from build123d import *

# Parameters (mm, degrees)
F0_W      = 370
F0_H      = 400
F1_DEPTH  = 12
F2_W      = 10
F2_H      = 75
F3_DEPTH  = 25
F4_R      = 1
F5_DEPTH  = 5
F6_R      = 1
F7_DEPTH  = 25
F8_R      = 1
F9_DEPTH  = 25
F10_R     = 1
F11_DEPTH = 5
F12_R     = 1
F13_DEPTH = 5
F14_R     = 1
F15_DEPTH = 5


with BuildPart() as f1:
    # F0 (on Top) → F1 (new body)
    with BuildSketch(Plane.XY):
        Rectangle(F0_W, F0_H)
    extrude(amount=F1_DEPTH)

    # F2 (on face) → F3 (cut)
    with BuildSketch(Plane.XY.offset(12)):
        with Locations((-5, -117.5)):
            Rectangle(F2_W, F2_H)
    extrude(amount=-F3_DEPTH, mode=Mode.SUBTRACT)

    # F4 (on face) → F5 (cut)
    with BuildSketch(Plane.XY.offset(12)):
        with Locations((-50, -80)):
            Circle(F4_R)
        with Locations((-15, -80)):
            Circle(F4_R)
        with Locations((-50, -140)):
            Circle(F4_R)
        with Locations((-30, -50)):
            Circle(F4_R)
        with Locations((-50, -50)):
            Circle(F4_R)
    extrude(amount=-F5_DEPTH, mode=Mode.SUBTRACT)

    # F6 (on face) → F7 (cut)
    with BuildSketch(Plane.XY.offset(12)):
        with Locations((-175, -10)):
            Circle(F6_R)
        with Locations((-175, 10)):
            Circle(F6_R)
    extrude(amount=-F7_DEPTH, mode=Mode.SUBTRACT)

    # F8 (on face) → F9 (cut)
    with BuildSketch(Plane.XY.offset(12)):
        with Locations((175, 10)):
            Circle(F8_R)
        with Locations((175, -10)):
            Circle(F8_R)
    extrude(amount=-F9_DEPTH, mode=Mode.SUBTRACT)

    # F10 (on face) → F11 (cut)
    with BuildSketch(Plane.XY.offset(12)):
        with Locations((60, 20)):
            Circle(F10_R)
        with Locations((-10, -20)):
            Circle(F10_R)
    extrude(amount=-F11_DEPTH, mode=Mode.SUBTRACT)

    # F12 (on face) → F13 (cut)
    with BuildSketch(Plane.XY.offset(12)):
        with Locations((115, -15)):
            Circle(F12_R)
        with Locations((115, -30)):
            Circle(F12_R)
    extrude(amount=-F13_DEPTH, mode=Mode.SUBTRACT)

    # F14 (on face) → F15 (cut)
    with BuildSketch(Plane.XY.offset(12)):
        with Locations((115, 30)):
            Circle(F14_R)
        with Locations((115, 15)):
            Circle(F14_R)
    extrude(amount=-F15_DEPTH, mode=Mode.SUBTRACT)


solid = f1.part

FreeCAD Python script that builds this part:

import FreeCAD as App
import Part
import Sketcher

V = App.Vector
Q = App.Units.Quantity


def add_polygon(sketch, points):
    """Adds a closed chain of lines whose ends are joined by coincident constraints."""
    first, n = sketch.GeometryCount, len(points)
    for a, b in zip(points, points[1:] + points[:1]):
        sketch.addGeometry(Part.LineSegment(App.Vector(*a, 0), App.Vector(*b, 0)), False)
    for i in range(n):
        sketch.addConstraint(Sketcher.Constraint("Coincident", first + i, 2, first + (i + 1) % n, 1))

doc = App.newDocument("Part")
params = doc.addObject("Spreadsheet::Sheet", "Params")
for row, (alias, value) in enumerate([
    ("sketch1_width", "370 mm"),
    ("sketch1_height", "400 mm"),
    ("pad1_length", "12 mm"),
    ("sketch2_width", "10 mm"),
    ("sketch2_height", "75 mm"),
    ("pocket1_length", "25 mm"),
    ("sketch3_diameter", "2 mm"),
    ("pocket2_length", "5 mm"),
    ("sketch4_diameter", "2 mm"),
    ("pocket3_length", "25 mm"),
    ("sketch5_diameter", "2 mm"),
    ("pocket4_length", "25 mm"),
    ("sketch6_diameter", "2 mm"),
    ("pocket5_length", "5 mm"),
    ("sketch7_diameter", "2 mm"),
    ("pocket6_length", "5 mm"),
    ("sketch8_diameter", "2 mm"),
    ("pocket7_length", "5 mm"),
], start=1):
    params.set(f"A{row}", alias)
    params.set(f"B{row}", "=" + value)
    params.setAlias(f"B{row}", alias)

body = doc.addObject("PartDesign::Body", "Body")

# Sketch on XY plane
sketch1 = doc.addObject("Sketcher::SketchObject", "Sketch")
body.addObject(sketch1)
sketch1.AttachmentSupport = (doc.XY_Plane, [""])
sketch1.MapMode = "FlatFace"
add_polygon(sketch1, [(-185, 200), (-185, -200), (185, -200), (185, 200)])  # lines 0-3
sketch1.addConstraint(Sketcher.Constraint("Vertical", 0))
sketch1.addConstraint(Sketcher.Constraint("Horizontal", 1))
sketch1.addConstraint(Sketcher.Constraint("Vertical", 2))
sketch1.addConstraint(Sketcher.Constraint("Horizontal", 3))
sketch1.addConstraint(Sketcher.Constraint("Symmetric", 0, 2, 2, 2, -1, 1))
sketch1.addConstraint(Sketcher.Constraint("DistanceX", 1, 1, 1, 2, Q("370 mm")))
sketch1.addConstraint(Sketcher.Constraint("DistanceY", 0, 2, 0, 1, Q("400 mm")))
sketch1.setExpression("Constraints[9]", "Params.sketch1_width")
sketch1.setExpression("Constraints[10]", "Params.sketch1_height")
pad1 = doc.addObject("PartDesign::Pad", "Pad")
body.addObject(pad1)
pad1.Profile = sketch1
pad1.setExpression("Length", "Params.pad1_length")

# Sketch on XY plane
sketch2 = doc.addObject("Sketcher::SketchObject", "Sketch001")
body.addObject(sketch2)
sketch2.AttachmentSupport = (doc.XY_Plane, [""])
sketch2.MapMode = "FlatFace"
sketch2.AttachmentOffset = App.Placement(V(0, 0, 12), App.Rotation())
add_polygon(sketch2, [(-10, -80), (-10, -155), (0, -155), (0, -80)])  # lines 0-3
sketch2.addConstraint(Sketcher.Constraint("Vertical", 0))
sketch2.addConstraint(Sketcher.Constraint("Horizontal", 1))
sketch2.addConstraint(Sketcher.Constraint("Vertical", 2))
sketch2.addConstraint(Sketcher.Constraint("Horizontal", 3))
sketch2.addConstraint(Sketcher.Constraint("PointOnObject", 1, 2, -2))
sketch2.addConstraint(Sketcher.Constraint("DistanceX", 1, 1, 1, 2, Q("10 mm")))
sketch2.addConstraint(Sketcher.Constraint("DistanceY", 0, 2, 0, 1, Q("75 mm")))
sketch2.addConstraint(Sketcher.Constraint("DistanceY", 0, 2, -1, 1, Q("155 mm")))
sketch2.setExpression("Constraints[9]", "Params.sketch2_width")
sketch2.setExpression("Constraints[10]", "Params.sketch2_height")
pocket1 = doc.addObject("PartDesign::Pocket", "Pocket")
body.addObject(pocket1)
pocket1.Profile = sketch2
pocket1.setExpression("Length", "Params.pocket1_length")

# Sketch on XY plane
sketch3 = doc.addObject("Sketcher::SketchObject", "Sketch002")
body.addObject(sketch3)
sketch3.AttachmentSupport = (doc.XY_Plane, [""])
sketch3.MapMode = "FlatFace"
sketch3.AttachmentOffset = App.Placement(V(0, 0, 12), App.Rotation())
sketch3.addGeometry(Part.Circle(V(-50, -80, 0), V(0, 0, 1), 1), False)
sketch3.addGeometry(Part.Circle(V(-15, -80, 0), V(0, 0, 1), 1), False)
sketch3.addGeometry(Part.Circle(V(-50, -140, 0), V(0, 0, 1), 1), False)
sketch3.addGeometry(Part.Circle(V(-30, -50, 0), V(0, 0, 1), 1), False)
sketch3.addGeometry(Part.Circle(V(-50, -50, 0), V(0, 0, 1), 1), False)
sketch3.addConstraint(Sketcher.Constraint("Equal", 0, 1))
sketch3.addConstraint(Sketcher.Constraint("Equal", 1, 2))
sketch3.addConstraint(Sketcher.Constraint("Equal", 2, 3))
sketch3.addConstraint(Sketcher.Constraint("Equal", 3, 4))
sketch3.addConstraint(Sketcher.Constraint("Horizontal", 0, 3, 1, 3))
sketch3.addConstraint(Sketcher.Constraint("Horizontal", 3, 3, 4, 3))
sketch3.addConstraint(Sketcher.Constraint("Vertical", 0, 3, 2, 3))
sketch3.addConstraint(Sketcher.Constraint("Vertical", 2, 3, 4, 3))
sketch3.addConstraint(Sketcher.Constraint("Diameter", 0, Q("2 mm")))
sketch3.addConstraint(Sketcher.Constraint("DistanceX", 0, 3, -1, 1, Q("50 mm")))
sketch3.addConstraint(Sketcher.Constraint("DistanceY", 0, 3, -1, 1, Q("80 mm")))
sketch3.addConstraint(Sketcher.Constraint("DistanceX", 1, 3, -1, 1, Q("15 mm")))
sketch3.addConstraint(Sketcher.Constraint("DistanceY", 2, 3, -1, 1, Q("140 mm")))
sketch3.addConstraint(Sketcher.Constraint("DistanceX", 3, 3, -1, 1, Q("30 mm")))
sketch3.addConstraint(Sketcher.Constraint("DistanceY", 3, 3, -1, 1, Q("50 mm")))
sketch3.setExpression("Constraints[8]", "Params.sketch3_diameter")
pocket2 = doc.addObject("PartDesign::Pocket", "Pocket001")
body.addObject(pocket2)
pocket2.Profile = sketch3
pocket2.setExpression("Length", "Params.pocket2_length")

# Sketch on XY plane
sketch4 = doc.addObject("Sketcher::SketchObject", "Sketch003")
body.addObject(sketch4)
sketch4.AttachmentSupport = (doc.XY_Plane, [""])
sketch4.MapMode = "FlatFace"
sketch4.AttachmentOffset = App.Placement(V(0, 0, 12), App.Rotation())
sketch4.addGeometry(Part.Circle(V(-175, -10, 0), V(0, 0, 1), 1), False)
sketch4.addGeometry(Part.Circle(V(-175, 10, 0), V(0, 0, 1), 1), False)
sketch4.addConstraint(Sketcher.Constraint("Equal", 0, 1))
sketch4.addConstraint(Sketcher.Constraint("Symmetric", 0, 3, 1, 3, -1))
sketch4.addConstraint(Sketcher.Constraint("Diameter", 0, Q("2 mm")))
sketch4.addConstraint(Sketcher.Constraint("DistanceX", 0, 3, -1, 1, Q("175 mm")))
sketch4.addConstraint(Sketcher.Constraint("DistanceY", 0, 3, -1, 1, Q("10 mm")))
sketch4.setExpression("Constraints[2]", "Params.sketch4_diameter")
pocket3 = doc.addObject("PartDesign::Pocket", "Pocket002")
body.addObject(pocket3)
pocket3.Profile = sketch4
pocket3.setExpression("Length", "Params.pocket3_length")

# Sketch on XY plane
sketch5 = doc.addObject("Sketcher::SketchObject", "Sketch004")
body.addObject(sketch5)
sketch5.AttachmentSupport = (doc.XY_Plane, [""])
sketch5.MapMode = "FlatFace"
sketch5.AttachmentOffset = App.Placement(V(0, 0, 12), App.Rotation())
sketch5.addGeometry(Part.Circle(V(175, 10, 0), V(0, 0, 1), 1), False)
sketch5.addGeometry(Part.Circle(V(175, -10, 0), V(0, 0, 1), 1), False)
sketch5.addConstraint(Sketcher.Constraint("Equal", 0, 1))
sketch5.addConstraint(Sketcher.Constraint("Symmetric", 0, 3, 1, 3, -1))
sketch5.addConstraint(Sketcher.Constraint("Diameter", 0, Q("2 mm")))
sketch5.addConstraint(Sketcher.Constraint("DistanceX", -1, 1, 0, 3, Q("175 mm")))
sketch5.addConstraint(Sketcher.Constraint("DistanceY", -1, 1, 0, 3, Q("10 mm")))
sketch5.setExpression("Constraints[2]", "Params.sketch5_diameter")
pocket4 = doc.addObject("PartDesign::Pocket", "Pocket003")
body.addObject(pocket4)
pocket4.Profile = sketch5
pocket4.setExpression("Length", "Params.pocket4_length")

# Sketch on XY plane
sketch6 = doc.addObject("Sketcher::SketchObject", "Sketch005")
body.addObject(sketch6)
sketch6.AttachmentSupport = (doc.XY_Plane, [""])
sketch6.MapMode = "FlatFace"
sketch6.AttachmentOffset = App.Placement(V(0, 0, 12), App.Rotation())
sketch6.addGeometry(Part.Circle(V(60, 20, 0), V(0, 0, 1), 1), False)
sketch6.addGeometry(Part.Circle(V(-10, -20, 0), V(0, 0, 1), 1), False)
sketch6.addConstraint(Sketcher.Constraint("Equal", 0, 1))
sketch6.addConstraint(Sketcher.Constraint("Diameter", 0, Q("2 mm")))
sketch6.addConstraint(Sketcher.Constraint("DistanceX", -1, 1, 0, 3, Q("60 mm")))
sketch6.addConstraint(Sketcher.Constraint("DistanceY", -1, 1, 0, 3, Q("20 mm")))
sketch6.addConstraint(Sketcher.Constraint("DistanceX", 1, 3, -1, 1, Q("10 mm")))
sketch6.addConstraint(Sketcher.Constraint("DistanceY", 1, 3, -1, 1, Q("20 mm")))
sketch6.setExpression("Constraints[1]", "Params.sketch6_diameter")
pocket5 = doc.addObject("PartDesign::Pocket", "Pocket004")
body.addObject(pocket5)
pocket5.Profile = sketch6
pocket5.setExpression("Length", "Params.pocket5_length")

# Sketch on XY plane
sketch7 = doc.addObject("Sketcher::SketchObject", "Sketch006")
body.addObject(sketch7)
sketch7.AttachmentSupport = (doc.XY_Plane, [""])
sketch7.MapMode = "FlatFace"
sketch7.AttachmentOffset = App.Placement(V(0, 0, 12), App.Rotation())
sketch7.addGeometry(Part.Circle(V(115, -15, 0), V(0, 0, 1), 1), False)
sketch7.addGeometry(Part.Circle(V(115, -30, 0), V(0, 0, 1), 1), False)
sketch7.addConstraint(Sketcher.Constraint("Equal", 0, 1))
sketch7.addConstraint(Sketcher.Constraint("Vertical", 0, 3, 1, 3))
sketch7.addConstraint(Sketcher.Constraint("Diameter", 0, Q("2 mm")))
sketch7.addConstraint(Sketcher.Constraint("DistanceX", -1, 1, 0, 3, Q("115 mm")))
sketch7.addConstraint(Sketcher.Constraint("DistanceY", 0, 3, -1, 1, Q("15 mm")))
sketch7.addConstraint(Sketcher.Constraint("DistanceY", 1, 3, -1, 1, Q("30 mm")))
sketch7.setExpression("Constraints[2]", "Params.sketch7_diameter")
pocket6 = doc.addObject("PartDesign::Pocket", "Pocket005")
body.addObject(pocket6)
pocket6.Profile = sketch7
pocket6.setExpression("Length", "Params.pocket6_length")

# Sketch on XY plane
sketch8 = doc.addObject("Sketcher::SketchObject", "Sketch007")
body.addObject(sketch8)
sketch8.AttachmentSupport = (doc.XY_Plane, [""])
sketch8.MapMode = "FlatFace"
sketch8.AttachmentOffset = App.Placement(V(0, 0, 12), App.Rotation())
sketch8.addGeometry(Part.Circle(V(115, 30, 0), V(0, 0, 1), 1), False)
sketch8.addGeometry(Part.Circle(V(115, 15, 0), V(0, 0, 1), 1), False)
sketch8.addConstraint(Sketcher.Constraint("Equal", 0, 1))
sketch8.addConstraint(Sketcher.Constraint("Vertical", 0, 3, 1, 3))
sketch8.addConstraint(Sketcher.Constraint("Diameter", 0, Q("2 mm")))
sketch8.addConstraint(Sketcher.Constraint("DistanceX", -1, 1, 0, 3, Q("115 mm")))
sketch8.addConstraint(Sketcher.Constraint("DistanceY", -1, 1, 0, 3, Q("30 mm")))
sketch8.addConstraint(Sketcher.Constraint("DistanceY", -1, 1, 1, 3, Q("15 mm")))
sketch8.setExpression("Constraints[2]", "Params.sketch8_diameter")
pocket7 = doc.addObject("PartDesign::Pocket", "Pocket006")
body.addObject(pocket7)
pocket7.Profile = sketch8
pocket7.setExpression("Length", "Params.pocket7_length")

doc.recompute()
